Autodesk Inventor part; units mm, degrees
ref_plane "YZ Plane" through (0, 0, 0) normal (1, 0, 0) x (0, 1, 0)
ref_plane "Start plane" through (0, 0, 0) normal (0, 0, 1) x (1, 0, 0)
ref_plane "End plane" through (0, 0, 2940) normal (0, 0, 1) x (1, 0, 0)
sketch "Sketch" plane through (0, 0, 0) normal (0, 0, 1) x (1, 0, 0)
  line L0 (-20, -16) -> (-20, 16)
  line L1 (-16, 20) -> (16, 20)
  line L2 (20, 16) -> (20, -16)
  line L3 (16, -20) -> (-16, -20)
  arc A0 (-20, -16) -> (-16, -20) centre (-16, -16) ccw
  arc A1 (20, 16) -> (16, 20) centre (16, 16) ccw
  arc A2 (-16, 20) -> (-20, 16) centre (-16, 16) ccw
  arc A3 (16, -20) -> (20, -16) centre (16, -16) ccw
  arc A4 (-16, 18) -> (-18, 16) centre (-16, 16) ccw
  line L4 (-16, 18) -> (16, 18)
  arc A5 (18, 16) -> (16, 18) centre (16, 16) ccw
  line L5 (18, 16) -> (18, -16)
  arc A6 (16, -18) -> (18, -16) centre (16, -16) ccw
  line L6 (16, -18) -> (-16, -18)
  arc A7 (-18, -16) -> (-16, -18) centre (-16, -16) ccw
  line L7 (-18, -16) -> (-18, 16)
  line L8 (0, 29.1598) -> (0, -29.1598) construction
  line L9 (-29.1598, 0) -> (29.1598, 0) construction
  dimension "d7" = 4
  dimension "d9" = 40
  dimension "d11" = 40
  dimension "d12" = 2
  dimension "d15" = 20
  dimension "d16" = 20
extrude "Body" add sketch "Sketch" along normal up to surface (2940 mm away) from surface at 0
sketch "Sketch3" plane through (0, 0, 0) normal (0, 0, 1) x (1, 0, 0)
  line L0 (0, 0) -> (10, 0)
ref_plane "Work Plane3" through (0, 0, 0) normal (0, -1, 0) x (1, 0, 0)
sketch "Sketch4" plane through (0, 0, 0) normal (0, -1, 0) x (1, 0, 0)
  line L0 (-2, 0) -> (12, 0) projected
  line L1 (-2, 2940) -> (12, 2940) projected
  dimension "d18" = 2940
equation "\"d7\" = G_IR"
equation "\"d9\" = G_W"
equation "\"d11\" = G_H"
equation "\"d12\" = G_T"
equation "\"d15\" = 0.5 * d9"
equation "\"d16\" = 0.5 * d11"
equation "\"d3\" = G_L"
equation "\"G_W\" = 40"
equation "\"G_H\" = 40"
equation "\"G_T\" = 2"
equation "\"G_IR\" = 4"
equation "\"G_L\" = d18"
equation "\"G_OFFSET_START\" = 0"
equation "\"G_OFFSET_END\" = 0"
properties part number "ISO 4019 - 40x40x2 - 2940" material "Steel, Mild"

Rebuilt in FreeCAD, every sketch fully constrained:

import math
import FreeCAD as App
import Part
import Sketcher
from FreeCAD import Vector

doc = App.newDocument("Part")
body = doc.addObject("PartDesign::Body", "Body")

sketch1 = body.newObject("Sketcher::SketchObject", "Sketch")
sketch1.AttachmentSupport = (doc.getObject("XY_Plane"), [""])
sketch1.MapMode = "FlatFace"
sketch1.addGeometry(Part.LineSegment(Vector(-20, 16, 0), Vector(-20, -16, 0)), False)
sketch1.addGeometry(Part.ArcOfCircle(Part.Circle(Vector(-16, -16, 0), Vector(0, 0, 1), 4), math.radians(180), math.radians(270)), False)
sketch1.addGeometry(Part.LineSegment(Vector(-16, -20, 0), Vector(16, -20, 0)), False)
sketch1.addGeometry(Part.ArcOfCircle(Part.Circle(Vector(16, -16, 0), Vector(0, 0, 1), 4), math.radians(-90), math.radians(0)), False)
sketch1.addGeometry(Part.LineSegment(Vector(20, -16, 0), Vector(20, 16, 0)), False)
sketch1.addGeometry(Part.ArcOfCircle(Part.Circle(Vector(16, 16, 0), Vector(0, 0, 1), 4), math.radians(0), math.radians(90)), False)
sketch1.addGeometry(Part.LineSegment(Vector(16, 20, 0), Vector(-16, 20, 0)), False)
sketch1.addGeometry(Part.ArcOfCircle(Part.Circle(Vector(-16, 16, 0), Vector(0, 0, 1), 4), math.radians(90), math.radians(180)), False)
sketch1.addGeometry(Part.ArcOfCircle(Part.Circle(Vector(-16, 16, 0), Vector(0, 0, 1), 2), math.radians(90), math.radians(180)), False)
sketch1.addGeometry(Part.LineSegment(Vector(-16, 18, 0), Vector(16, 18, 0)), False)
sketch1.addGeometry(Part.ArcOfCircle(Part.Circle(Vector(16, 16, 0), Vector(0, 0, 1), 2), math.radians(0), math.radians(90)), False)
sketch1.addGeometry(Part.LineSegment(Vector(18, 16, 0), Vector(18, -16, 0)), False)
sketch1.addGeometry(Part.ArcOfCircle(Part.Circle(Vector(16, -16, 0), Vector(0, 0, 1), 2), math.radians(-90), math.radians(0)), False)
sketch1.addGeometry(Part.LineSegment(Vector(16, -18, 0), Vector(-16, -18, 0)), False)
sketch1.addGeometry(Part.ArcOfCircle(Part.Circle(Vector(-16, -16, 0), Vector(0, 0, 1), 2), math.radians(180), math.radians(270)), False)
sketch1.addGeometry(Part.LineSegment(Vector(-18, -16, 0), Vector(-18, 16, 0)), False)
sketch1.addConstraint(Sketcher.Constraint("Tangent", 0, 2, 1, 1))
sketch1.addConstraint(Sketcher.Constraint("Tangent", 1, 2, 2, 1))
sketch1.addConstraint(Sketcher.Constraint("Tangent", 2, 2, 3, 1))
sketch1.addConstraint(Sketcher.Constraint("Tangent", 3, 2, 4, 1))
sketch1.addConstraint(Sketcher.Constraint("Tangent", 4, 2, 5, 1))
sketch1.addConstraint(Sketcher.Constraint("Tangent", 5, 2, 6, 1))
sketch1.addConstraint(Sketcher.Constraint("Tangent", 6, 2, 7, 1))
sketch1.addConstraint(Sketcher.Constraint("Tangent", 7, 2, 0, 1))
sketch1.addConstraint(Sketcher.Constraint("Tangent", 8, 1, 9, 1))
sketch1.addConstraint(Sketcher.Constraint("Tangent", 9, 2, 10, 2))
sketch1.addConstraint(Sketcher.Constraint("Tangent", 10, 1, 11, 1))
sketch1.addConstraint(Sketcher.Constraint("Tangent", 11, 2, 12, 2))
sketch1.addConstraint(Sketcher.Constraint("Tangent", 12, 1, 13, 1))
sketch1.addConstraint(Sketcher.Constraint("Tangent", 13, 2, 14, 2))
sketch1.addConstraint(Sketcher.Constraint("Tangent", 14, 1, 15, 1))
sketch1.addConstraint(Sketcher.Constraint("Tangent", 15, 2, 8, 2))
sketch1.addConstraint(Sketcher.Constraint("Vertical", 0))
sketch1.addConstraint(Sketcher.Constraint("Horizontal", 2))
sketch1.addConstraint(Sketcher.Constraint("Vertical", 4))
sketch1.addConstraint(Sketcher.Constraint("Horizontal", 6))
sketch1.addConstraint(Sketcher.Constraint("Horizontal", 9))
sketch1.addConstraint(Sketcher.Constraint("Vertical", 11))
sketch1.addConstraint(Sketcher.Constraint("Horizontal", 13))
sketch1.addConstraint(Sketcher.Constraint("Vertical", 15))
sketch1.addConstraint(Sketcher.Constraint("Coincident", 8, 3, 7, 3))
sketch1.addConstraint(Sketcher.Constraint("Coincident", 10, 3, 5, 3))
sketch1.addConstraint(Sketcher.Constraint("Coincident", 12, 3, 3, 3))
sketch1.addConstraint(Sketcher.Constraint("Equal", 1, 3))
sketch1.addConstraint(Sketcher.Constraint("Equal", 3, 5))
sketch1.addConstraint(Sketcher.Constraint("Equal", 5, 7))
sketch1.addConstraint(Sketcher.Constraint("Equal", 12, 14))
sketch1.addConstraint(Sketcher.Constraint("Symmetric", 1, 3, 5, 3, -1, 1))
sketch1.addConstraint(Sketcher.Constraint("Equal", 13, 0))
sketch1.addConstraint(Sketcher.Constraint("Radius", 1, 4.0))
sketch1.addConstraint(Sketcher.Constraint("Radius", 8, 2.0))
sketch1.addConstraint(Sketcher.Constraint("DistanceX", 0, 2, -1, 1, 20.0))
pad1 = body.newObject("PartDesign::Pad", "Pad")
pad1.Profile = sketch1
pad1.Length = 2940

doc.recompute()
